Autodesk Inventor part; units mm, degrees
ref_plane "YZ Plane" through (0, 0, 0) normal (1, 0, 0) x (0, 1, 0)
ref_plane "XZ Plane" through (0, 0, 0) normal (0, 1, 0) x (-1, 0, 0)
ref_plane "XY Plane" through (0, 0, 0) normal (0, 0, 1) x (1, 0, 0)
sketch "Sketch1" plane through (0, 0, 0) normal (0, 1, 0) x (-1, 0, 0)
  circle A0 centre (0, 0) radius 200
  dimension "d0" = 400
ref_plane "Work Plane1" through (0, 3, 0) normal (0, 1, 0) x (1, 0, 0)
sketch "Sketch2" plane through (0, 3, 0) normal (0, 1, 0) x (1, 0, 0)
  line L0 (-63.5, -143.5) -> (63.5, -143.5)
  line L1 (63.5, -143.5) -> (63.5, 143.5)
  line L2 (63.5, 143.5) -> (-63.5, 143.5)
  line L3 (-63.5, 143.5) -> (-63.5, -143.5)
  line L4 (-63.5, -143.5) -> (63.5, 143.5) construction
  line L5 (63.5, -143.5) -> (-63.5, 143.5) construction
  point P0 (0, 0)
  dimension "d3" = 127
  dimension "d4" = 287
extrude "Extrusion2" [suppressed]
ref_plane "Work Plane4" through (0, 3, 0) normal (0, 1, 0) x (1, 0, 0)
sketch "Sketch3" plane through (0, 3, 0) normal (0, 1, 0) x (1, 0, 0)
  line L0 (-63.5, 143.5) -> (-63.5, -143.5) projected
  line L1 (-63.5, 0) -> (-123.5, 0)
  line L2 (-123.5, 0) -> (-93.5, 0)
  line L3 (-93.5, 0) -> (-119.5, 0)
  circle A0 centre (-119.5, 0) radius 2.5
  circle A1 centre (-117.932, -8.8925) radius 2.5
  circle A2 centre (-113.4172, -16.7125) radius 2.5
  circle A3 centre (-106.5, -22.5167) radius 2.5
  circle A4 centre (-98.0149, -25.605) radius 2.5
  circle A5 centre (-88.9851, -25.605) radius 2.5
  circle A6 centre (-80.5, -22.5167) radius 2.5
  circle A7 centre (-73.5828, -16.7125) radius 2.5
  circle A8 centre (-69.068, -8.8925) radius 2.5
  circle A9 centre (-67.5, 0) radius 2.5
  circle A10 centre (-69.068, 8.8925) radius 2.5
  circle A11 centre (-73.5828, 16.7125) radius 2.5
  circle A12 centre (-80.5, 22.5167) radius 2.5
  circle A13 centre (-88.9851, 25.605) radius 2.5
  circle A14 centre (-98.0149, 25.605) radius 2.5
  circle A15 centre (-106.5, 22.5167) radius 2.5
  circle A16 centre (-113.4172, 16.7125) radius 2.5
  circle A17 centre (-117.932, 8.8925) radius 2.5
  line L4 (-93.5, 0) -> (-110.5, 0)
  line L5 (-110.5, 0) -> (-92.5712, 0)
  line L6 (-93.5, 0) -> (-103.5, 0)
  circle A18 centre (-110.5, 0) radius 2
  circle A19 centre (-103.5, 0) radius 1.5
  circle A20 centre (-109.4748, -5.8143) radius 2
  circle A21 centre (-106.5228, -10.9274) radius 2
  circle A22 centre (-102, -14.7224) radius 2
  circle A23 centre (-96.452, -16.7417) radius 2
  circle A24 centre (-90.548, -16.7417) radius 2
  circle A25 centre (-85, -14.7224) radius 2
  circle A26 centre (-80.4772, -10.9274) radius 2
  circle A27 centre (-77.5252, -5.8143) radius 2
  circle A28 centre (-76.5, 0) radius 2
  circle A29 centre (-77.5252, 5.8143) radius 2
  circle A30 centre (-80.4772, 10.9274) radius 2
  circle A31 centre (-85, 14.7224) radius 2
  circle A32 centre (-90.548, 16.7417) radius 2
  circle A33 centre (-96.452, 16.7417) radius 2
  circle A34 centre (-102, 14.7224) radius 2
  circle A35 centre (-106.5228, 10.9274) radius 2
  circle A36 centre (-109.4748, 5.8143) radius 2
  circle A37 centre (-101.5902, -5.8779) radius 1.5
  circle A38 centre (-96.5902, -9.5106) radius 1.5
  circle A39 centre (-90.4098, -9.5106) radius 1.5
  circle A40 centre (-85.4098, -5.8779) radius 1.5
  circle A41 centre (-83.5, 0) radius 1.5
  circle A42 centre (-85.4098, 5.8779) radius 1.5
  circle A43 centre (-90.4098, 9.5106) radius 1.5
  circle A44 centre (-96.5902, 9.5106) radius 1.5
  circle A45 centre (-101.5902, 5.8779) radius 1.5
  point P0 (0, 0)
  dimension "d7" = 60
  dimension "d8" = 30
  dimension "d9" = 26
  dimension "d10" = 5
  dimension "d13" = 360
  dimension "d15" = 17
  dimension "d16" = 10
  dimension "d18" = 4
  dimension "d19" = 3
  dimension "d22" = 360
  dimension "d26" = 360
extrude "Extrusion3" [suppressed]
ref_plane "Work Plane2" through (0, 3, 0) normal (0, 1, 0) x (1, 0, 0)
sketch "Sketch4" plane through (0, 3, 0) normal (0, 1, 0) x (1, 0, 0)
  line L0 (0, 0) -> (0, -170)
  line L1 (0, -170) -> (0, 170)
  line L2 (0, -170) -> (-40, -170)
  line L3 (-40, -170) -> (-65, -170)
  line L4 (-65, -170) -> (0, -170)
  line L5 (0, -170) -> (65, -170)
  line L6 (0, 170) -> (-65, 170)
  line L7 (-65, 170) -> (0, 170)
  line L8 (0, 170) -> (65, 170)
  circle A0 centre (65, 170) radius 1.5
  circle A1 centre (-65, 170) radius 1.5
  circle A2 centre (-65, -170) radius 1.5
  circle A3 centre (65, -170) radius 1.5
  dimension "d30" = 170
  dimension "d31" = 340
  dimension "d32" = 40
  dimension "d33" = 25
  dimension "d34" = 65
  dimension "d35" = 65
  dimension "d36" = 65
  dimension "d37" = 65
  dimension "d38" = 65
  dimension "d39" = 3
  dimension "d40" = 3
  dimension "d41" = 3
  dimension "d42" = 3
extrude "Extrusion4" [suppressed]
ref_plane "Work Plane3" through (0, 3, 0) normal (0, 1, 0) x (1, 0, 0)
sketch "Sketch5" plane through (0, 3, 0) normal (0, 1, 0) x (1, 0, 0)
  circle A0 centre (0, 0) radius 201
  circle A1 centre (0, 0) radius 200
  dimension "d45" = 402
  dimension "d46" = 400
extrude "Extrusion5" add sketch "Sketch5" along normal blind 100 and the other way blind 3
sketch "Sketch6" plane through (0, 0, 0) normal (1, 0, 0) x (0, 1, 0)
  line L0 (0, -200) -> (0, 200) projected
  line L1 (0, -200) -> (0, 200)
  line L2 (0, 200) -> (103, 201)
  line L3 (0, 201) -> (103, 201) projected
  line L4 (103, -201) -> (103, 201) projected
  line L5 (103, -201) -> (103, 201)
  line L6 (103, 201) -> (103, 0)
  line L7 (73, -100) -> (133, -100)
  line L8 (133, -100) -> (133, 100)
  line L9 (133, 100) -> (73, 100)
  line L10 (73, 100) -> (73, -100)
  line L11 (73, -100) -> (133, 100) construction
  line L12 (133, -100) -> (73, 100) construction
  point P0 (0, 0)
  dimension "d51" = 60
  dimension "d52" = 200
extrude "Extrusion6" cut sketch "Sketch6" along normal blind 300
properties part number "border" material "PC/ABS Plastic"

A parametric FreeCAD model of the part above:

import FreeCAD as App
import Part
import Sketcher
from FreeCAD import Vector

doc = App.newDocument("Part")
body = doc.addObject("PartDesign::Body", "Body")

# Sketch on XZ plane
sketch1 = doc.addObject("Sketcher::SketchObject", "Sketch")
body.addObject(sketch1)
sketch1.AttachmentSupport = (doc.XZ_Plane, [""])
sketch1.MapMode = "FlatFace"
sketch1.AttachmentOffset = App.Placement(Vector(0, 0, -3), App.Rotation())
sketch1.addGeometry(Part.Circle(Vector(0, 0, 0), Vector(0, 0, 1), 201), False)
sketch1.addGeometry(Part.Circle(Vector(0, 0, 0), Vector(0, 0, 1), 200), False)
sketch1.addConstraint(Sketcher.Constraint("Coincident", 0, 3, -1, 1))
sketch1.addConstraint(Sketcher.Constraint("Coincident", 1, 3, -1, 1))
sketch1.addConstraint(Sketcher.Constraint("Diameter", 0, 402.0))
sketch1.addConstraint(Sketcher.Constraint("Diameter", 1, 400.0))
pad1 = doc.addObject("PartDesign::Pad", "Pad")
body.addObject(pad1)
pad1.Profile = sketch1
pad1.Type = "TwoLengths"
pad1.Length = 100
pad1.Length2 = 3
pad1.Reversed = True

# Sketch on YZ plane
sketch2 = doc.addObject("Sketcher::SketchObject", "Sketch001")
body.addObject(sketch2)
sketch2.AttachmentSupport = (doc.YZ_Plane, [""])
sketch2.MapMode = "FlatFace"
sketch2.addGeometry(Part.LineSegment(Vector(73, -100, 0), Vector(133, -100, 0)), False)
sketch2.addGeometry(Part.LineSegment(Vector(133, -100, 0), Vector(133, 100, 0)), False)
sketch2.addGeometry(Part.LineSegment(Vector(133, 100, 0), Vector(73, 100, 0)), False)
sketch2.addGeometry(Part.LineSegment(Vector(73, 100, 0), Vector(73, -100, 0)), False)
sketch2.addConstraint(Sketcher.Constraint("Coincident", 0, 2, 1, 1))
sketch2.addConstraint(Sketcher.Constraint("Coincident", 1, 2, 2, 1))
sketch2.addConstraint(Sketcher.Constraint("Coincident", 2, 2, 3, 1))
sketch2.addConstraint(Sketcher.Constraint("Coincident", 3, 2, 0, 1))
sketch2.addConstraint(Sketcher.Constraint("Horizontal", 0))
sketch2.addConstraint(Sketcher.Constraint("Vertical", 1))
sketch2.addConstraint(Sketcher.Constraint("Horizontal", 2))
sketch2.addConstraint(Sketcher.Constraint("Vertical", 3))
sketch2.addConstraint(Sketcher.Constraint("DistanceX", 0, 1, 0, 2, 60.0))
sketch2.addConstraint(Sketcher.Constraint("DistanceY", 1, 1, 1, 2, 200.0))
sketch2.addConstraint(Sketcher.Constraint("DistanceX", -1, 1, 0, 2, 133.0))
sketch2.addConstraint(Sketcher.Constraint("DistanceY", 0, 2, -1, 1, 100.0))
pocket1 = doc.addObject("PartDesign::Pocket", "Pocket")
body.addObject(pocket1)
pocket1.Profile = sketch2
pocket1.Length = 300
pocket1.Reversed = True

doc.recompute()
